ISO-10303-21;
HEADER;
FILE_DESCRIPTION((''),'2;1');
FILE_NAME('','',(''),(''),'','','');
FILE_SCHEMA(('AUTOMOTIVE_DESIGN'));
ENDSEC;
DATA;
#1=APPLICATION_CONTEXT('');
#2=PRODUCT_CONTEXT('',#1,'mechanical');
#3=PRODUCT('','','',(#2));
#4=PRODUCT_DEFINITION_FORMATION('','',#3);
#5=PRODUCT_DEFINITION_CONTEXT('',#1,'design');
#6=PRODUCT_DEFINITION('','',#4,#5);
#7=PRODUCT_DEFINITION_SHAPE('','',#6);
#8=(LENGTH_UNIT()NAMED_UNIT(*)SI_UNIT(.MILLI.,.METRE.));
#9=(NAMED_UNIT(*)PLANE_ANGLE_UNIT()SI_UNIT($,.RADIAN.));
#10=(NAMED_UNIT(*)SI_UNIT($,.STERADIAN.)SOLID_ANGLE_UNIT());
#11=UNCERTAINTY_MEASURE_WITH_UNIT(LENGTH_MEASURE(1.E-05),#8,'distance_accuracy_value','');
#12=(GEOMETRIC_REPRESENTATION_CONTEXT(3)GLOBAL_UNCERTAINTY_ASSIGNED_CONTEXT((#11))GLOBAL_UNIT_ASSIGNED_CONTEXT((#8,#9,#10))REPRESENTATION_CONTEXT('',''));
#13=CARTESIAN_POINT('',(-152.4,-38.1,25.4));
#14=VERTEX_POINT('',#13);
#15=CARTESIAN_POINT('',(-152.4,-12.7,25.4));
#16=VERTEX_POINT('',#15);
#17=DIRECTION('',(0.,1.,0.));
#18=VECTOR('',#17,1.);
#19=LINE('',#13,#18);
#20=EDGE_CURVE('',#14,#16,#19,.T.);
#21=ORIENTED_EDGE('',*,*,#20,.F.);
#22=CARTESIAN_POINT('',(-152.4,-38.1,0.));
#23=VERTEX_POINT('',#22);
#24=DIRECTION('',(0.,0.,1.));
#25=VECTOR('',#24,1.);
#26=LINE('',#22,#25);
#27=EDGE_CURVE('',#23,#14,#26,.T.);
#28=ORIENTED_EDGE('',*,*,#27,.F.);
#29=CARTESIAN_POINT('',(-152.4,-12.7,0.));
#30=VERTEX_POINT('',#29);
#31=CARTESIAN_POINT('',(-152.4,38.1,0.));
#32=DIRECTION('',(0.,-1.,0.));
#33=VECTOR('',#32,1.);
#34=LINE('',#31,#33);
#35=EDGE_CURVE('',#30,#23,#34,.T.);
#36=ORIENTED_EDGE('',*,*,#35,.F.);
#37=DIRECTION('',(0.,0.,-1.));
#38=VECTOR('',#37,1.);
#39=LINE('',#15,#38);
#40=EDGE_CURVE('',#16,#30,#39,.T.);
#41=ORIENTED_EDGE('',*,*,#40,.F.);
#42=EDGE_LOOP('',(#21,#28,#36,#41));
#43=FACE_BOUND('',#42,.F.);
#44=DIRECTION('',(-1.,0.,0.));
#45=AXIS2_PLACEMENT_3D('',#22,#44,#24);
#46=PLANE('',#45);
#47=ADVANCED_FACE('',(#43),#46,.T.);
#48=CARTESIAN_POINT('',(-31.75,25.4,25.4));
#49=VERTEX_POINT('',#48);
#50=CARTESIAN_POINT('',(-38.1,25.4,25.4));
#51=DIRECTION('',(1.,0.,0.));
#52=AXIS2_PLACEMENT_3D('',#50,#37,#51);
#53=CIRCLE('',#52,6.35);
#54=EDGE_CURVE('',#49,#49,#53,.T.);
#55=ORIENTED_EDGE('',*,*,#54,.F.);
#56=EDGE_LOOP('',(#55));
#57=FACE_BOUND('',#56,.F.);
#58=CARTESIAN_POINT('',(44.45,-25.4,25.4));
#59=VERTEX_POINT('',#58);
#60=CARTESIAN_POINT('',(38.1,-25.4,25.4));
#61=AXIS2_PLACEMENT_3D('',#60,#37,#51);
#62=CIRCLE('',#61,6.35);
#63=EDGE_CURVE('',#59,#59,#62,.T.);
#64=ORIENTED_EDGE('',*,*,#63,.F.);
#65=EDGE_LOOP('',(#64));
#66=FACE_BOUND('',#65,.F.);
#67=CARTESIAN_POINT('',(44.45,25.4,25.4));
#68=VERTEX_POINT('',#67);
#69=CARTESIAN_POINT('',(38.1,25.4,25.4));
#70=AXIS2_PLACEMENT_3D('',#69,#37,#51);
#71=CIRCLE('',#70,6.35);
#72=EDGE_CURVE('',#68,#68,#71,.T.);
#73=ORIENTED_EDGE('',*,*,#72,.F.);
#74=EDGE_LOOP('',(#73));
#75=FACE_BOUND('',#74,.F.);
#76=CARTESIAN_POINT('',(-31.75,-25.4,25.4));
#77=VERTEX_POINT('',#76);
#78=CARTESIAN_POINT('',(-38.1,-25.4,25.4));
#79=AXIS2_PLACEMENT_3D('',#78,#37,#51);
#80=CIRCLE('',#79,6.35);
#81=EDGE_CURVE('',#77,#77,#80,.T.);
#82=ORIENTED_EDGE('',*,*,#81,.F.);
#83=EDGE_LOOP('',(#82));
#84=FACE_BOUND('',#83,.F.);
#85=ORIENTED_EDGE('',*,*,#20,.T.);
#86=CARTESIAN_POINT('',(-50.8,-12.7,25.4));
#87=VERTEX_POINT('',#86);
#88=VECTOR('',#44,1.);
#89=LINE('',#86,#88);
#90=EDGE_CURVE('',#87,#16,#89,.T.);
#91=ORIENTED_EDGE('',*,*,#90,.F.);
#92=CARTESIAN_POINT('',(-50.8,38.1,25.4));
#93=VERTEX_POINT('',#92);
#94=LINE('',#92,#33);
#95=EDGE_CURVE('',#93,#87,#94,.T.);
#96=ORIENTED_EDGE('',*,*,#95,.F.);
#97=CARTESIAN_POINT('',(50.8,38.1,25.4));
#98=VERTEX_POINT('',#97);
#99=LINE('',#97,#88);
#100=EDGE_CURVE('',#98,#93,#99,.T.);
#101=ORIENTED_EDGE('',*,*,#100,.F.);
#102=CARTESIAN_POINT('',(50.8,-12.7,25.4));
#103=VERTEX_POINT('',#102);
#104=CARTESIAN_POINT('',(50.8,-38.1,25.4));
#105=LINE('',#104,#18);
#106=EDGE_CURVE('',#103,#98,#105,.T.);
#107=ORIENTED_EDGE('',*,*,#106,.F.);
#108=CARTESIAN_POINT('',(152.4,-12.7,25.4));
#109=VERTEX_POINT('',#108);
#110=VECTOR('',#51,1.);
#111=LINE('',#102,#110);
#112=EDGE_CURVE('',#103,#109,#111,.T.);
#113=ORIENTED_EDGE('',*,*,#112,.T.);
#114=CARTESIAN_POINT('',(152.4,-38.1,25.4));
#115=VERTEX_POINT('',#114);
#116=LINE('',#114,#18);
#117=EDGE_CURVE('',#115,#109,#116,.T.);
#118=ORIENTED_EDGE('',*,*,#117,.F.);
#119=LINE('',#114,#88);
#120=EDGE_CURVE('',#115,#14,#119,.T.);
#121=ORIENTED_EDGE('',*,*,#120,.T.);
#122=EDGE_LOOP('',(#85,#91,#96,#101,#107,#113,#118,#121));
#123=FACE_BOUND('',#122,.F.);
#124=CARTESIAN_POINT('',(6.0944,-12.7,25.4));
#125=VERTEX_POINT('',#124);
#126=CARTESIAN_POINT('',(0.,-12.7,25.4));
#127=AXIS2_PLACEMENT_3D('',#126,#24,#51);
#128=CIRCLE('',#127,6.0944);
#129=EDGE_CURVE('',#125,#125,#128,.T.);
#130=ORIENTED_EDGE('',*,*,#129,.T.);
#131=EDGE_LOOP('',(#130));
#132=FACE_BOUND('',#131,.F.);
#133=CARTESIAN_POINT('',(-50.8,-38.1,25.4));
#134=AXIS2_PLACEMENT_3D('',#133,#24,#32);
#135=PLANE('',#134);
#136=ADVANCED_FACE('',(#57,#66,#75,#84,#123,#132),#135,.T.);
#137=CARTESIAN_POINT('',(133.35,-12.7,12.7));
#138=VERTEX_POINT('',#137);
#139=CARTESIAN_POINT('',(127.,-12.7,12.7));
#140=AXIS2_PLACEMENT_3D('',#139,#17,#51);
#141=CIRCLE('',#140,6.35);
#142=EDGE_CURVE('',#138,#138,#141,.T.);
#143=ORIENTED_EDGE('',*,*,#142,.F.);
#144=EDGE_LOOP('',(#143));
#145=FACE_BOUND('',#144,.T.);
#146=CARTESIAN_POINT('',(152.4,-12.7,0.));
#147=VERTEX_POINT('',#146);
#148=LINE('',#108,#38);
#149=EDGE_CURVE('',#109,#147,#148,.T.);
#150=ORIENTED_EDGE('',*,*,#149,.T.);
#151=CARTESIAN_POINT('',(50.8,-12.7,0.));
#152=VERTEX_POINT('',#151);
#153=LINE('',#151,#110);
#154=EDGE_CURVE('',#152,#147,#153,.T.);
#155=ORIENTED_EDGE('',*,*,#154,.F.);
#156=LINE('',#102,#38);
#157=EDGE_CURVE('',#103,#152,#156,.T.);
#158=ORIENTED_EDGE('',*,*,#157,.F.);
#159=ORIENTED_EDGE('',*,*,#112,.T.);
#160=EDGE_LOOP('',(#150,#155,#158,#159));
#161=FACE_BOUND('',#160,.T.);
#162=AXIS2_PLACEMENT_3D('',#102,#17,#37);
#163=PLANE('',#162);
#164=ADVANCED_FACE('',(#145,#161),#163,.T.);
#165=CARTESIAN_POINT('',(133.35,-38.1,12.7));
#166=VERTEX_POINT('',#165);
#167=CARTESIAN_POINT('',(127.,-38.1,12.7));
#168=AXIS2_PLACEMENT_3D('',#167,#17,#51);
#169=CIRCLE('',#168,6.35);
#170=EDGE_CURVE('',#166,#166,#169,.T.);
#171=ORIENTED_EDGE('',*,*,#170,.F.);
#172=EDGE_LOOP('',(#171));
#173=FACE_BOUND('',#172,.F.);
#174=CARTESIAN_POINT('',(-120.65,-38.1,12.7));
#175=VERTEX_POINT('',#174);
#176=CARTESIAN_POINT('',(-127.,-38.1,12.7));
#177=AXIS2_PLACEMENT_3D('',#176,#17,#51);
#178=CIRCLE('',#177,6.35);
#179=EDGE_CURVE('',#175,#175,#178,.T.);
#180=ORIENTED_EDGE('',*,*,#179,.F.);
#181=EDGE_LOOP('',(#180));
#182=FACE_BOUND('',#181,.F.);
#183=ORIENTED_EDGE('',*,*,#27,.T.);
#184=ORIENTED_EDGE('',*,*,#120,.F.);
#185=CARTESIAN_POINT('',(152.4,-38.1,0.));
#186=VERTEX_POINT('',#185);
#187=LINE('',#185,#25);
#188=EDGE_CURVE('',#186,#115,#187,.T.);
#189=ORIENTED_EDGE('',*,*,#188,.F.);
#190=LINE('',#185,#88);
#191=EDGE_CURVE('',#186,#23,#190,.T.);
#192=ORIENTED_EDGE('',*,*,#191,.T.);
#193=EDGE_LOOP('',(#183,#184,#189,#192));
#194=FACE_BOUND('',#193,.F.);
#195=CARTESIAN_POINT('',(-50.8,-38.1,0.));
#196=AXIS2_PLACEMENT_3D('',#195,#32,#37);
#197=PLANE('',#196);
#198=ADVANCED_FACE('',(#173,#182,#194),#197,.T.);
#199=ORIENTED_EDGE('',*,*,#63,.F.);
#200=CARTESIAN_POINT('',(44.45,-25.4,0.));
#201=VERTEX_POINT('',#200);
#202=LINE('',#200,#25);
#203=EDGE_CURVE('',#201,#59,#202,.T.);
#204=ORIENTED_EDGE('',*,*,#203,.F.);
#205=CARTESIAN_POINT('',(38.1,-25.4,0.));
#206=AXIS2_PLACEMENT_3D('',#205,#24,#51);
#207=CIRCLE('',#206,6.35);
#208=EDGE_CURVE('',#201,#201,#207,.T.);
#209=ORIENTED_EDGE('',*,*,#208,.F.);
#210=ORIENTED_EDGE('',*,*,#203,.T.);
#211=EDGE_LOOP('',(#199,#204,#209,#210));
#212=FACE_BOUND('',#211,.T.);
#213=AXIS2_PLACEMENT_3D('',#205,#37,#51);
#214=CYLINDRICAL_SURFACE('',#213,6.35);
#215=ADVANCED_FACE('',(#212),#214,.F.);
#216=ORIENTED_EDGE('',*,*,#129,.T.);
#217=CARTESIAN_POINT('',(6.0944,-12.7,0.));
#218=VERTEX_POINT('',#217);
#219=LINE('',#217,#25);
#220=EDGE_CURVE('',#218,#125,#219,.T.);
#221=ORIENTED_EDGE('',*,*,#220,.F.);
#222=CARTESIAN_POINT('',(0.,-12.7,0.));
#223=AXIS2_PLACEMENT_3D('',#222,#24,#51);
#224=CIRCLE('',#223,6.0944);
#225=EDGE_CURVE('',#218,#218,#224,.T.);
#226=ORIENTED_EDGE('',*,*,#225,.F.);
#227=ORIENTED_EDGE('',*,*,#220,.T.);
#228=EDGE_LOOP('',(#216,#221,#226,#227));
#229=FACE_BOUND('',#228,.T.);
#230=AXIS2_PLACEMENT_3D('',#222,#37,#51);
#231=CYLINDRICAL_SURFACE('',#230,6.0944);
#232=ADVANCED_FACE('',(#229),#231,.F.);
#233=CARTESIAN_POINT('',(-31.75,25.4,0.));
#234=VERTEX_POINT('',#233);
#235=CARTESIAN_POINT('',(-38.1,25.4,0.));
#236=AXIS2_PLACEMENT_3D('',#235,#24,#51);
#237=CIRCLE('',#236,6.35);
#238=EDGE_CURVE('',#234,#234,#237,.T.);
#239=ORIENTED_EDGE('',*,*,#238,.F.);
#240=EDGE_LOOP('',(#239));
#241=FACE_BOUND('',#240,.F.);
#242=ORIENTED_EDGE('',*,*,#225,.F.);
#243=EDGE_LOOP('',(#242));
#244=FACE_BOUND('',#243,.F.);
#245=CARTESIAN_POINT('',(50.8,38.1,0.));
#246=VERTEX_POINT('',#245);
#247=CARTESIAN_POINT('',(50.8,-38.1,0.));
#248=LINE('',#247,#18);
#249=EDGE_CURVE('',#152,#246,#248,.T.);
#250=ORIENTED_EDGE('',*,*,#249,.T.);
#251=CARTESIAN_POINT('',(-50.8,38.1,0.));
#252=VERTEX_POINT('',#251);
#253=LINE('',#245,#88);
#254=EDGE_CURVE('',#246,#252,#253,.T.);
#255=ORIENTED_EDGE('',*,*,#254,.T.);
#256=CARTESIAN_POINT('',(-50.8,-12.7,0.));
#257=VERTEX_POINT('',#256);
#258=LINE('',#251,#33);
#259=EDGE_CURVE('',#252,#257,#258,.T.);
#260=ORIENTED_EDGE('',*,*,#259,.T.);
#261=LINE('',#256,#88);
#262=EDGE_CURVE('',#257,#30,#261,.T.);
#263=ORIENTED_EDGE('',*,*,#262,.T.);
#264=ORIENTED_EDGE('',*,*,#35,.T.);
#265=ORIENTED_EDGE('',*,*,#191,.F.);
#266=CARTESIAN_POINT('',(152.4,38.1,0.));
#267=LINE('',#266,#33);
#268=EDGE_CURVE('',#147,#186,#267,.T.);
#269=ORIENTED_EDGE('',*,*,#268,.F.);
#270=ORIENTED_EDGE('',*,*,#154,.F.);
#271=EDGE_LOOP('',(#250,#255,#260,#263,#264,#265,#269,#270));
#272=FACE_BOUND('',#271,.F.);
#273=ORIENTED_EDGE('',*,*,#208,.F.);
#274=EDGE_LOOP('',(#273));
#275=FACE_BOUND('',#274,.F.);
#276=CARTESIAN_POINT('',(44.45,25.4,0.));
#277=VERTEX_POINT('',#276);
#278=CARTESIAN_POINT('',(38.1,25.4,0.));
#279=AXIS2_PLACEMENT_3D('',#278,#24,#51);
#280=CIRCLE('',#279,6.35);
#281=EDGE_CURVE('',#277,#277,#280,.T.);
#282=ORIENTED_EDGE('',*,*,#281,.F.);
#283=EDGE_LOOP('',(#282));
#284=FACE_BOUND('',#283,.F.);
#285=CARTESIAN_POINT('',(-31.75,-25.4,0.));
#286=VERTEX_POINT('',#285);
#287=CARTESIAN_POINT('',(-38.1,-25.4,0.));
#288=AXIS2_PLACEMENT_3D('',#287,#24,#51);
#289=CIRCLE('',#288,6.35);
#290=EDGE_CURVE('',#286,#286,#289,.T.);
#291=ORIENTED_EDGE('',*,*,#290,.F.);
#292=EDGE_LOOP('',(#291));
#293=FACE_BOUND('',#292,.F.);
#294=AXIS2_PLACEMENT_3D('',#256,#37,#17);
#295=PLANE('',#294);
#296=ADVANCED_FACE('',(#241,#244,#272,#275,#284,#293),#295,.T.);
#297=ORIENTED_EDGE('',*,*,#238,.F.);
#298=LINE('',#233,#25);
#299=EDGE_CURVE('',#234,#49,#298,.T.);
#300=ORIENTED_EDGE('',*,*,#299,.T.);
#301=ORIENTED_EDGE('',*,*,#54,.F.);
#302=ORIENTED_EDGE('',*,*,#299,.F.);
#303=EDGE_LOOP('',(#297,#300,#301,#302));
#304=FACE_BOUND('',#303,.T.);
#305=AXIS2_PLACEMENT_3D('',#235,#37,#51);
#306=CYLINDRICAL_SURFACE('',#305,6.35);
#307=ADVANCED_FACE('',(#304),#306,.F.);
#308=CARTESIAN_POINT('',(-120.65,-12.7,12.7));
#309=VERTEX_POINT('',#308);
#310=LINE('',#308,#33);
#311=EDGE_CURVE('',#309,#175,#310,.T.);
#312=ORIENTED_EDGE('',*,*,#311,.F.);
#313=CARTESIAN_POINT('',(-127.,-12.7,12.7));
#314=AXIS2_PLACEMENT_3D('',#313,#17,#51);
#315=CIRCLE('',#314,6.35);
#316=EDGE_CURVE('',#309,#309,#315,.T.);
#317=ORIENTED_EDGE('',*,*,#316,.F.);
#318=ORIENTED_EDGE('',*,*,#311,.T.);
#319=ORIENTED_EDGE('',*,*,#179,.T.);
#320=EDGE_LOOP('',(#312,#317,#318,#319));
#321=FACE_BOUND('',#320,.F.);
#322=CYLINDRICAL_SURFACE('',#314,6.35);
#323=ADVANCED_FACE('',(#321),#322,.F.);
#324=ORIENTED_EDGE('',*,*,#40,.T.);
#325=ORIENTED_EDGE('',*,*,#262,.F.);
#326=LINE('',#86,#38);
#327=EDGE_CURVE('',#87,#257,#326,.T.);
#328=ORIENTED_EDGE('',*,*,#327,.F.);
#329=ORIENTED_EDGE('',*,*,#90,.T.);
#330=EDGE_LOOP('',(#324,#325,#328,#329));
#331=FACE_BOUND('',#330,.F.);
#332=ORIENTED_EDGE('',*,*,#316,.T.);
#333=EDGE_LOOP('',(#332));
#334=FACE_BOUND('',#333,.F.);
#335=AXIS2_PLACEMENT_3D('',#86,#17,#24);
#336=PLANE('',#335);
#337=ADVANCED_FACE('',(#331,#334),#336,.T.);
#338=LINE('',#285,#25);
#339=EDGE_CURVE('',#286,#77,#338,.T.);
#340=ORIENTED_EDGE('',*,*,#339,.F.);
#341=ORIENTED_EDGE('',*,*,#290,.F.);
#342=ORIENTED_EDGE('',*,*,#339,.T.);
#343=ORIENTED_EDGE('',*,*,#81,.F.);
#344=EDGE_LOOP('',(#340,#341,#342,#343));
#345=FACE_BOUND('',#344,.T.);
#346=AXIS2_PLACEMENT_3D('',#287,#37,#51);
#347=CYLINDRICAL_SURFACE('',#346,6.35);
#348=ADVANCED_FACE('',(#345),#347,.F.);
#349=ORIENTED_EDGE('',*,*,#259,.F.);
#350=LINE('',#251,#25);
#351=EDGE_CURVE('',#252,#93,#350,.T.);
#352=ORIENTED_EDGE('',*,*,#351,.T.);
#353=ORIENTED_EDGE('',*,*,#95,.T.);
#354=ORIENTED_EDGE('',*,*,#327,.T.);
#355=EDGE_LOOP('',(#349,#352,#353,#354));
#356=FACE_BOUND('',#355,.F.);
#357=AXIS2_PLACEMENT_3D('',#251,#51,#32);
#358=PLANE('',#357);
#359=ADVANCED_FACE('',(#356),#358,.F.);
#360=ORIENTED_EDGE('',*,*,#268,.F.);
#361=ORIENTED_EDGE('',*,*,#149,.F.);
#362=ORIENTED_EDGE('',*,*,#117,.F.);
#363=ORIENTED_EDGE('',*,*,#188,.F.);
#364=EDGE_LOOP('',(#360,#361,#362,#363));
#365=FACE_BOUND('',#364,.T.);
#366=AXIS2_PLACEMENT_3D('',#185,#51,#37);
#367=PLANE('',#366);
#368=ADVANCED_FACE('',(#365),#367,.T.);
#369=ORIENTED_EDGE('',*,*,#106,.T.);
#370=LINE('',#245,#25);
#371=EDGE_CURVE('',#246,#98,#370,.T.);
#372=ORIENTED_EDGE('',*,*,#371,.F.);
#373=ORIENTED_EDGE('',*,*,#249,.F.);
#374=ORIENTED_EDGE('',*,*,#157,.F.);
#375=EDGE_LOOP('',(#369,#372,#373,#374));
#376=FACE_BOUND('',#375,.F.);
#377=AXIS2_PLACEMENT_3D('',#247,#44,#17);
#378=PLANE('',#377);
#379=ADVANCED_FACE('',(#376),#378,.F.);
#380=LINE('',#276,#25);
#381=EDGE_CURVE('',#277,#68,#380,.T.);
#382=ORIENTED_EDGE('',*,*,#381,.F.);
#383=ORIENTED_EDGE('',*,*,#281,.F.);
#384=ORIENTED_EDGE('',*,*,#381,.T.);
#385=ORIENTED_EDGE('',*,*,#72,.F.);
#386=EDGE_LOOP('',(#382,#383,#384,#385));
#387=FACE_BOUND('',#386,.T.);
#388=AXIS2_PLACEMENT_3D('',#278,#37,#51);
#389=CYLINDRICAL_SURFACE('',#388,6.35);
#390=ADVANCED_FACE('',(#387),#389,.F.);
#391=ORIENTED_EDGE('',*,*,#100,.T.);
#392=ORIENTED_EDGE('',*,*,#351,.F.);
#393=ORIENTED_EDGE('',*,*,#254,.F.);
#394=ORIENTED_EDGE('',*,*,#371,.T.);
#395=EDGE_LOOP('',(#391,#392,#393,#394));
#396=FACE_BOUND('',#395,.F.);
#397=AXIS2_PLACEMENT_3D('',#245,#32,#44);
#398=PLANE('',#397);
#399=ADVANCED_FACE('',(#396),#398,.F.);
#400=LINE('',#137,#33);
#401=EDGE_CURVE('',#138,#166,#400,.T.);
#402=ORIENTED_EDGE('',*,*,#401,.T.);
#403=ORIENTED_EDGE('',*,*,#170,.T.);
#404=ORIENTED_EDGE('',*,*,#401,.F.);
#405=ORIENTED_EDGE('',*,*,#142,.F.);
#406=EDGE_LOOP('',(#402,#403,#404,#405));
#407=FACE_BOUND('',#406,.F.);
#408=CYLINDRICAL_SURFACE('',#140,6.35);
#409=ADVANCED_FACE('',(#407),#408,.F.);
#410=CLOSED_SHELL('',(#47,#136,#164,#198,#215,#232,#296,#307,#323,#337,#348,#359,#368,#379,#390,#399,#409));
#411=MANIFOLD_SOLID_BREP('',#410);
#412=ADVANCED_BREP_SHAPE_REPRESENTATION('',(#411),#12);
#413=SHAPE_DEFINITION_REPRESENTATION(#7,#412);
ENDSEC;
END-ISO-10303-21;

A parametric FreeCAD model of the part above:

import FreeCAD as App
import Part
import Sketcher

V = App.Vector
Q = App.Units.Quantity

doc = App.newDocument("Part")
body = doc.addObject("PartDesign::Body", "Body")

sketch1 = body.newObject("Sketcher::SketchObject", "Sketch")
sketch1.AttachmentSupport = (doc.getObject("XY_Plane"), [""])
sketch1.MapMode = "FlatFace"
sketch1.addGeometry([
    Part.LineSegment(V(-51, 38, 0), V(-51, -38, 0)),
    Part.LineSegment(V(-51, -38, 0), V(51, -38, 0)),
    Part.LineSegment(V(51, -38, 0), V(51, 38, 0)),
    Part.LineSegment(V(51, 38, 0), V(-51, 38, 0)),
    Part.Circle(V(38, -25, 0), V(0, 0, 1), 6),
    Part.Circle(V(38, 25, 0), V(0, 0, 1), 6),
    Part.Circle(V(-38, 25, 0), V(0, 0, 1), 6),
    Part.Circle(V(-38, -25, 0), V(0, 0, 1), 6),
    Part.Circle(V(0, -13, 0), V(0, 0, 1), 6),
], False)
sketch1.addConstraint([
    Sketcher.Constraint("Coincident", 0, 2, 1, 1),
    Sketcher.Constraint("Coincident", 1, 2, 2, 1),
    Sketcher.Constraint("Coincident", 2, 2, 3, 1),
    Sketcher.Constraint("Coincident", 3, 2, 0, 1),
    Sketcher.Constraint("Vertical", 0),
    Sketcher.Constraint("Horizontal", 1),
    Sketcher.Constraint("Vertical", 2),
    Sketcher.Constraint("Horizontal", 3),
    Sketcher.Constraint("Equal", 4, 5),
    Sketcher.Constraint("Equal", 5, 6),
    Sketcher.Constraint("Equal", 6, 7),
    Sketcher.Constraint("Symmetric", 4, 3, 6, 3, -1, 1),
    Sketcher.Constraint("Symmetric", 5, 3, 7, 3, -1, 1),
    Sketcher.Constraint("Symmetric", 0, 2, 2, 2, -1, 1),
    Sketcher.Constraint("Symmetric", 5, 3, 6, 3, -2),
    Sketcher.Constraint("PointOnObject", 8, 3, -2),
    Sketcher.Constraint("Diameter", 4, Q("0.5 in")),
    Sketcher.Constraint("DistanceX", 1, 1, 1, 2, Q("4 in")),
    Sketcher.Constraint("DistanceY", 0, 2, 0, 1, Q("3 in")),
    Sketcher.Constraint("DistanceY", 4, 3, 5, 3, Q("2 in")),
    Sketcher.Constraint("DistanceX", 6, 3, 5, 3, Q("3 in")),
    Sketcher.Constraint("DistanceY", 8, 3, 2, 2, Q("2 in")),
    Sketcher.Constraint("Diameter", 8, Q("12.1888 mm")),
])
pad1 = body.newObject("PartDesign::Pad", "Pad")
pad1.Profile = sketch1
pad1.Length = Q("1 in")

sketch2 = body.newObject("Sketcher::SketchObject", "Sketch001")
sketch2.AttachmentSupport = (doc.getObject("YZ_Plane"), [""])
sketch2.MapMode = "FlatFace"
sketch2.AttachmentOffset = App.Placement(V(0, 0, 2 * 25.4), App.Rotation())
sketch2.addGeometry([
    Part.LineSegment(V(-38, 0, 0), V(-13, 0, 0)),
    Part.LineSegment(V(-13, 0, 0), V(-13, 25, 0)),
    Part.LineSegment(V(-13, 25, 0), V(-38, 25, 0)),
    Part.LineSegment(V(-38, 25, 0), V(-38, 0, 0)),
], False)
sketch2.addConstraint([
    Sketcher.Constraint("Coincident", 0, 2, 1, 1),
    Sketcher.Constraint("Coincident", 1, 2, 2, 1),
    Sketcher.Constraint("Coincident", 2, 2, 3, 1),
    Sketcher.Constraint("Coincident", 3, 2, 0, 1),
    Sketcher.Constraint("Horizontal", 0),
    Sketcher.Constraint("Vertical", 1),
    Sketcher.Constraint("Horizontal", 2),
    Sketcher.Constraint("Vertical", 3),
    Sketcher.Constraint("PointOnObject", 0, 2, -1),
    Sketcher.Constraint("Equal", 2, 1),
    Sketcher.Constraint("DistanceX", 0, 1, 0, 2, Q("1 in")),
    Sketcher.Constraint("DistanceX", 0, 2, -1, 1, Q("0.5 in")),
])
pad2 = body.newObject("PartDesign::Pad", "Pad001")
pad2.Profile = sketch2
pad2.Length = Q("4 in")
doc.recompute()

mirrored = body.newObject("PartDesign::Mirrored", "Mirrored")
mirrored.Originals = [pad2]
mirrored.MirrorPlane = (doc.getObject("YZ_Plane"), [""])
body.Tip = mirrored

sketch3 = body.newObject("Sketcher::SketchObject", "Sketch002")
sketch3.AttachmentSupport = (doc.getObject("XZ_Plane"), [""])
sketch3.MapMode = "FlatFace"
sketch3.AttachmentOffset = App.Placement(V(0, 0, 0.5 * 25.4), App.Rotation())
sketch3.addGeometry([
    Part.Circle(V(127, 13, 0), V(0, 0, 1), 6),
    Part.Circle(V(-127, 13, 0), V(0, 0, 1), 6),
], False)
sketch3.addConstraint([
    Sketcher.Constraint("Equal", 0, 1),
    Sketcher.Constraint("Symmetric", 0, 3, 1, 3, -2),
    Sketcher.Constraint("Diameter", 0, Q("0.5 in")),
    Sketcher.Constraint("DistanceX", -1, 1, 0, 3, Q("5 in")),
    Sketcher.Constraint("DistanceY", -1, 1, 0, 3, Q("0.5 in")),
])
pocket1 = body.newObject("PartDesign::Pocket", "Pocket")
pocket1.Profile = sketch3
pocket1.Type = "ThroughAll"
pocket1.Reversed = True

doc.recompute()
